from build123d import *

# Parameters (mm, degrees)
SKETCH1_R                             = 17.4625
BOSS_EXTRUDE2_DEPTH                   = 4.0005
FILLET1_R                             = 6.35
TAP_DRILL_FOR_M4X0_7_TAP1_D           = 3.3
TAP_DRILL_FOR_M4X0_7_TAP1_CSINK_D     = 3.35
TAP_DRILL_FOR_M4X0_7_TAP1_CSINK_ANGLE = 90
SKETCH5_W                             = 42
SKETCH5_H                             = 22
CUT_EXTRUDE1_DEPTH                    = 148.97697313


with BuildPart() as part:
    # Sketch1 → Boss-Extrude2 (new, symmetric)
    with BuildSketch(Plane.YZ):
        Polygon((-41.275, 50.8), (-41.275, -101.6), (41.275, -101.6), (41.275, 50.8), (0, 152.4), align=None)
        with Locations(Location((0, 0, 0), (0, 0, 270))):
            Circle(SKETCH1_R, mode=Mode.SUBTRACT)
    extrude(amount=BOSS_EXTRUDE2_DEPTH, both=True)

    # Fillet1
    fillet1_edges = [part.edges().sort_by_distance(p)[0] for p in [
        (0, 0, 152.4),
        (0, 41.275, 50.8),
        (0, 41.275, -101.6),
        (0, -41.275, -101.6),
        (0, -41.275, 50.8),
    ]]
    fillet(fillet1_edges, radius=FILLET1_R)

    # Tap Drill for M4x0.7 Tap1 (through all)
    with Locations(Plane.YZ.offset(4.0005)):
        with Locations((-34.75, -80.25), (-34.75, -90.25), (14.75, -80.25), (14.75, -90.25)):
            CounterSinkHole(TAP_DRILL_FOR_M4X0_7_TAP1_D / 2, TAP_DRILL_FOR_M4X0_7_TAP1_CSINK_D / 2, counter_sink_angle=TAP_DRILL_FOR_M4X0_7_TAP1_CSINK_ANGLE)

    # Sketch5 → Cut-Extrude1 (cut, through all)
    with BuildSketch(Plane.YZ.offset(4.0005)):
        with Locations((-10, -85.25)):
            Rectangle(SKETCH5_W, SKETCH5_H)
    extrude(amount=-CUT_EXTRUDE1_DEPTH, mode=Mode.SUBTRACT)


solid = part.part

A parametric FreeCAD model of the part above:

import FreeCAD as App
import Part
import Sketcher

V = App.Vector
Q = App.Units.Quantity


def edges_at(feature, points):
    """Names of the edges that pass closest to the given points."""
    edges = feature.Shape.Edges
    near = lambda p: min(range(len(edges)), key=lambda i: edges[i].distToShape(Part.Vertex(*p))[0])
    return sorted({f"Edge{near(p) + 1}" for p in points})

doc = App.newDocument("Part")
params = doc.addObject("Spreadsheet::Sheet", "Params")
for row, (alias, value) in enumerate([
    ("sketch1_height", "6 in"),
    ("sketch1_diameter", "1.375 in"),
    ("sketch1_width", "3.25 in"),
    ("pad1_length", "0.315 in"),
    ("fillet_radius", "0.25 in"),
    ("hole_diameter", "3.3 mm"),
    ("hole_csink_diameter", "3.35 mm"),
], start=1):
    params.set(f"A{row}", alias)
    params.set(f"B{row}", "=" + value)
    params.setAlias(f"B{row}", alias)

body = doc.addObject("PartDesign::Body", "Body")

sketch1 = body.newObject("Sketcher::SketchObject", "Sketch")
sketch1.AttachmentSupport = (doc.getObject("YZ_Plane"), [""])
sketch1.MapMode = "FlatFace"
sketch1.addGeometry(Part.LineSegment(V(-41.275, 50.8, 0), V(-41.275, -101.6, 0)), False)
sketch1.addGeometry(Part.LineSegment(V(-41.275, -101.6, 0), V(41.275, -101.6, 0)), False)
sketch1.addGeometry(Part.LineSegment(V(41.275, -101.6, 0), V(41.275, 50.8, 0)), False)
sketch1.addGeometry(Part.LineSegment(V(41.275, 50.8, 0), V(0, 152.4, 0)), False)
sketch1.addGeometry(Part.LineSegment(V(0, 152.4, 0), V(-41.275, 50.8, 0)), False)
sketch1.addGeometry(Part.Circle(V(0, 0, 0), V(0, 0, 1), 17.4625), False)
sketch1.addConstraint(Sketcher.Constraint("Coincident", 0, 2, 1, 1))
sketch1.addConstraint(Sketcher.Constraint("Coincident", 1, 2, 2, 1))
sketch1.addConstraint(Sketcher.Constraint("Coincident", 2, 2, 3, 1))
sketch1.addConstraint(Sketcher.Constraint("Coincident", 3, 2, 4, 1))
sketch1.addConstraint(Sketcher.Constraint("Coincident", 4, 2, 0, 1))
sketch1.addConstraint(Sketcher.Constraint("Vertical", 0))
sketch1.addConstraint(Sketcher.Constraint("Horizontal", 1))
sketch1.addConstraint(Sketcher.Constraint("Vertical", 2))
sketch1.addConstraint(Sketcher.Constraint("Coincident", 5, 3, -1, 1))
sketch1.addConstraint(Sketcher.Constraint("Symmetric", 2, 2, 4, 2, -2))
sketch1.addConstraint(Sketcher.Constraint("PointOnObject", 3, 2, -2))
sketch1.addConstraint(Sketcher.Constraint("DistanceY", 0, 2, 0, 1, Q("6 in")))
sketch1.addConstraint(Sketcher.Constraint("Diameter", 5, Q("1.375 in")))
sketch1.addConstraint(Sketcher.Constraint("DistanceY", 0, 2, -1, 1, Q("4 in")))
sketch1.addConstraint(Sketcher.Constraint("DistanceY", -1, 1, 3, 2, Q("6 in")))
sketch1.addConstraint(Sketcher.Constraint("DistanceX", 1, 1, 1, 2, Q("3.25 in")))
sketch1.setExpression("Constraints[11]", "Params.sketch1_height")
sketch1.setExpression("Constraints[12]", "Params.sketch1_diameter")
sketch1.setExpression("Constraints[15]", "Params.sketch1_width")
pad1 = body.newObject("PartDesign::Pad", "Pad")
pad1.Profile = sketch1
pad1.setExpression("Length", "Params.pad1_length")
pad1.Midplane = True
doc.recompute()

fillet = body.newObject("PartDesign::Fillet", "Fillet")
fillet.Base = (pad1, edges_at(pad1, [
    (0, 0, 152.4),
    (0, 41.275, 50.8),
    (0, 41.275, -101.6),
    (0, -41.275, -101.6),
    (0, -41.275, 50.8),
]))
fillet.setExpression("Radius", "Params.fillet_radius")

sketch2 = body.newObject("Sketcher::SketchObject", "Sketch001")
sketch2.AttachmentSupport = (doc.getObject("YZ_Plane"), [""])
sketch2.MapMode = "FlatFace"
sketch2.AttachmentOffset = App.Placement(V(0, 0, 0.1575 * 25.4), App.Rotation())
sketch2.addGeometry(Part.Circle(V(-34.75, -80.25, 0), V(0, 0, 1), 1.65), False)
sketch2.addGeometry(Part.Circle(V(-34.75, -90.25, 0), V(0, 0, 1), 1.65), False)
sketch2.addGeometry(Part.Circle(V(14.75, -80.25, 0), V(0, 0, 1), 1.65), False)
sketch2.addGeometry(Part.Circle(V(14.75, -90.25, 0), V(0, 0, 1), 1.65), False)
sketch2.addConstraint(Sketcher.Constraint("Equal", 0, 1))
sketch2.addConstraint(Sketcher.Constraint("Equal", 1, 2))
sketch2.addConstraint(Sketcher.Constraint("Equal", 2, 3))
sketch2.addConstraint(Sketcher.Constraint("Horizontal", 0, 3, 2, 3))
sketch2.addConstraint(Sketcher.Constraint("Horizontal", 1, 3, 3, 3))
sketch2.addConstraint(Sketcher.Constraint("Vertical", 0, 3, 1, 3))
sketch2.addConstraint(Sketcher.Constraint("Vertical", 2, 3, 3, 3))
sketch2.addConstraint(Sketcher.Constraint("Diameter", 0, Q("3.3 mm")))
sketch2.addConstraint(Sketcher.Constraint("DistanceX", 0, 3, -1, 1, Q("34.75 mm")))
sketch2.addConstraint(Sketcher.Constraint("DistanceY", 0, 3, -1, 1, Q("80.25 mm")))
sketch2.addConstraint(Sketcher.Constraint("DistanceY", 1, 3, -1, 1, Q("90.25 mm")))
sketch2.addConstraint(Sketcher.Constraint("DistanceX", -1, 1, 2, 3, Q("14.75 mm")))
doc.recompute()
hole = body.newObject("PartDesign::Hole", "Hole")
hole.Profile = sketch2
hole.ThreadType = "None"
hole.setExpression("Diameter", "Params.hole_diameter")
hole.DepthType = "ThroughAll"
hole.HoleCutType = "Countersink"
hole.setExpression("HoleCutDiameter", "Params.hole_csink_diameter")
hole.HoleCutCountersinkAngle = 90

sketch3 = body.newObject("Sketcher::SketchObject", "Sketch002")
sketch3.AttachmentSupport = (doc.getObject("YZ_Plane"), [""])
sketch3.MapMode = "FlatFace"
sketch3.AttachmentOffset = App.Placement(V(0, 0, 0.1575 * 25.4), App.Rotation())
sketch3.addGeometry(Part.LineSegment(V(-31, -74.25, 0), V(-31, -96.25, 0)), False)
sketch3.addGeometry(Part.LineSegment(V(-31, -96.25, 0), V(11, -96.25, 0)), False)
sketch3.addGeometry(Part.LineSegment(V(11, -96.25, 0), V(11, -74.25, 0)), False)
sketch3.addGeometry(Part.LineSegment(V(11, -74.25, 0), V(-31, -74.25, 0)), False)
sketch3.addConstraint(Sketcher.Constraint("Coincident", 0, 2, 1, 1))
sketch3.addConstraint(Sketcher.Constraint("Coincident", 1, 2, 2, 1))
sketch3.addConstraint(Sketcher.Constraint("Coincident", 2, 2, 3, 1))
sketch3.addConstraint(Sketcher.Constraint("Coincident", 3, 2, 0, 1))
sketch3.addConstraint(Sketcher.Constraint("Vertical", 0))
sketch3.addConstraint(Sketcher.Constraint("Horizontal", 1))
sketch3.addConstraint(Sketcher.Constraint("Vertical", 2))
sketch3.addConstraint(Sketcher.Constraint("Horizontal", 3))
sketch3.addConstraint(Sketcher.Constraint("DistanceX", 1, 1, 1, 2, Q("42 mm")))
sketch3.addConstraint(Sketcher.Constraint("DistanceY", 0, 2, 0, 1, Q("22 mm")))
sketch3.addConstraint(Sketcher.Constraint("DistanceX", 0, 2, -1, 1, Q("31 mm")))
sketch3.addConstraint(Sketcher.Constraint("DistanceY", 0, 2, -1, 1, Q("96.25 mm")))
pocket1 = body.newObject("PartDesign::Pocket", "Pocket")
pocket1.Profile = sketch3
pocket1.Type = "ThroughAll"

doc.recompute()
